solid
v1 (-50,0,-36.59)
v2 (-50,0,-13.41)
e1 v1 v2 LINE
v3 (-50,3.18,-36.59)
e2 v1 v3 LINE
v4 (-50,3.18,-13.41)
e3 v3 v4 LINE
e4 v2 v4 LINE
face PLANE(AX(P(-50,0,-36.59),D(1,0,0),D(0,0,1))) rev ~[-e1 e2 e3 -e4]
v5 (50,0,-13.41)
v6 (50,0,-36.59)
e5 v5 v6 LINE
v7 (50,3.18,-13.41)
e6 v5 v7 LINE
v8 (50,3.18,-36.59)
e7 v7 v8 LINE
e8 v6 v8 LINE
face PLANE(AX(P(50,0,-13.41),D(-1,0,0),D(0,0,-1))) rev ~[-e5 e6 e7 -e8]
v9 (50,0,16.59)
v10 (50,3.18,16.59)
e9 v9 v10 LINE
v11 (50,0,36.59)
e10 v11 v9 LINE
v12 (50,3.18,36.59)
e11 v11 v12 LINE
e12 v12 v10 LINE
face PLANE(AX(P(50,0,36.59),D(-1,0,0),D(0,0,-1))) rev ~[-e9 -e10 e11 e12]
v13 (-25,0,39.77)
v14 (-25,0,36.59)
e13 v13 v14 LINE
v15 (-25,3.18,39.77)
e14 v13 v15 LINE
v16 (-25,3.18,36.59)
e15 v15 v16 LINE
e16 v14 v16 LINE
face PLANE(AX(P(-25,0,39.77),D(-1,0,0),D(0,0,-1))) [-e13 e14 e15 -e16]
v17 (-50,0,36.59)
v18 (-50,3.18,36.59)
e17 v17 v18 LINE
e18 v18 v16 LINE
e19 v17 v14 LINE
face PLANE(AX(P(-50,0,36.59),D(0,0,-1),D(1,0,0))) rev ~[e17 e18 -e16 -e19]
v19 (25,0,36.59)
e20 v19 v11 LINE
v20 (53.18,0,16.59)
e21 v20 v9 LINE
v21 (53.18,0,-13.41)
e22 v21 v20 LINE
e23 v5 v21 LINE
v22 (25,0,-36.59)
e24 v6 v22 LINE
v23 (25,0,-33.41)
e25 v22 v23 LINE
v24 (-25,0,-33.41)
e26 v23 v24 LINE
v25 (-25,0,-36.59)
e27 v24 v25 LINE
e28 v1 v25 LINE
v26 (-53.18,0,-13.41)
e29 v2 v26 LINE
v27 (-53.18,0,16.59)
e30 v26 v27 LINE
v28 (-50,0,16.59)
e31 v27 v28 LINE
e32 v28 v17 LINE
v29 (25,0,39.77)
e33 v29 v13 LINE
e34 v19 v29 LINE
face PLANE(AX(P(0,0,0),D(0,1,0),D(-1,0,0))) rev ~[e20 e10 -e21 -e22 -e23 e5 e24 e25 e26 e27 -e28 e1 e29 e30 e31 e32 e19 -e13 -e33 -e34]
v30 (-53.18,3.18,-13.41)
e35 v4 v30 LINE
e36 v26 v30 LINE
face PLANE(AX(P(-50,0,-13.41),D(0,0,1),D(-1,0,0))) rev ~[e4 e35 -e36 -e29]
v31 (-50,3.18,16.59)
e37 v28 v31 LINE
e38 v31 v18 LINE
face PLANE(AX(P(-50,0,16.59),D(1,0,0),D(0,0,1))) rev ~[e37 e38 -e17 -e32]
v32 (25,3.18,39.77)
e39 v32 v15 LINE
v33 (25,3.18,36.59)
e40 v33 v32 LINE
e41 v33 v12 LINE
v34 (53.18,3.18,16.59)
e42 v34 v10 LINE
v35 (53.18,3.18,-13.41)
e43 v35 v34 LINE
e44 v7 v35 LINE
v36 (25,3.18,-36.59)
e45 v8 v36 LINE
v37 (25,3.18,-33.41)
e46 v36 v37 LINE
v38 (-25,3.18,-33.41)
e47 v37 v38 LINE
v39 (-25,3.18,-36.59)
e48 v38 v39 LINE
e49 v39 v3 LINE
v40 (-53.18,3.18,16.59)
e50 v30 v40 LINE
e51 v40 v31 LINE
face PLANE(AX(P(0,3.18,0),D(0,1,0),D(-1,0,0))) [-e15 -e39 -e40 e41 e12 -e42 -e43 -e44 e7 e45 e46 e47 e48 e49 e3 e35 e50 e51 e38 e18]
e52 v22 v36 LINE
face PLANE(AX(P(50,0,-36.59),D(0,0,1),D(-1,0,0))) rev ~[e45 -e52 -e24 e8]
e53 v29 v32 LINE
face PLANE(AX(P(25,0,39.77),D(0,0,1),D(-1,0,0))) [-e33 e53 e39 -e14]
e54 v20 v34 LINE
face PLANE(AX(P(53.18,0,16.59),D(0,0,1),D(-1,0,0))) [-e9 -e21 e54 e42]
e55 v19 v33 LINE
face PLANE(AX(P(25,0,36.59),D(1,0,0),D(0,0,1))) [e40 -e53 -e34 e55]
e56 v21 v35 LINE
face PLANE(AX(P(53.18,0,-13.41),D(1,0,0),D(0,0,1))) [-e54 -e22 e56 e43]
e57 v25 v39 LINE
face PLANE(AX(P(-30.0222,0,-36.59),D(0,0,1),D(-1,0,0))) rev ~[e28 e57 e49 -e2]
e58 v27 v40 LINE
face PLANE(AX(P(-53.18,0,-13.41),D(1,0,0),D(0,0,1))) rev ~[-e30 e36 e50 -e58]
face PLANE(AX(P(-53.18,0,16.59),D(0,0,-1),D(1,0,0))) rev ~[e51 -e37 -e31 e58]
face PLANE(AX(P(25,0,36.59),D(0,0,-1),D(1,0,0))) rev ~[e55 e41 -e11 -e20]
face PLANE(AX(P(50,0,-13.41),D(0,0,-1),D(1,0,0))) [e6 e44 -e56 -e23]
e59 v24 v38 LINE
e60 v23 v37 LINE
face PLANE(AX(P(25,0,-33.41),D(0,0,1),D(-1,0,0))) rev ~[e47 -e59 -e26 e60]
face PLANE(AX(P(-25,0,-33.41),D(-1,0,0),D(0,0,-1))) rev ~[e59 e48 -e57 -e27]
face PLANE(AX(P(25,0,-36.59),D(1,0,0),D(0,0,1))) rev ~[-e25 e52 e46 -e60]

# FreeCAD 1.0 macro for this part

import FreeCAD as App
import Part
import Sketcher
Q = App.Units.Quantity


def add_polygon(sketch, points):
    """Adds a closed chain of lines whose ends are joined by coincident constraints."""
    first, n = sketch.GeometryCount, len(points)
    for a, b in zip(points, points[1:] + points[:1]):
        sketch.addGeometry(Part.LineSegment(App.Vector(*a, 0), App.Vector(*b, 0)), False)
    for i in range(n):
        sketch.addConstraint(Sketcher.Constraint("Coincident", first + i, 2, first + (i + 1) % n, 1))

doc = App.newDocument("Part")
body = doc.addObject("PartDesign::Body", "Body")

# Sketch on XZ plane
sketch1 = doc.addObject("Sketcher::SketchObject", "Sketch")
body.addObject(sketch1)
sketch1.AttachmentSupport = (doc.XZ_Plane, [""])
sketch1.MapMode = "FlatFace"
add_polygon(sketch1, [(50, -13.41), (50, -36.59), (25, -36.59), (25, -33.41), (-25, -33.41), (-25, -36.59), (-50, -36.59), (-50, -13.41), (-53.18, -13.41), (-53.18, 16.59), (-50, 16.59), (-50, 36.59), (-25, 36.59), (-25, 39.77), (25, 39.77), (25, 36.59), (50, 36.59), (50, 16.59), (53.18, 16.59), (53.18, -13.41)])  # lines 0-19
sketch1.addConstraint([
    Sketcher.Constraint("Vertical", 0),
    Sketcher.Constraint("Horizontal", 1),
    Sketcher.Constraint("Vertical", 2),
    Sketcher.Constraint("Horizontal", 3),
    Sketcher.Constraint("Vertical", 4),
    Sketcher.Constraint("Horizontal", 5),
    Sketcher.Constraint("Vertical", 6),
    Sketcher.Constraint("Horizontal", 7),
    Sketcher.Constraint("Vertical", 8),
    Sketcher.Constraint("Horizontal", 9),
    Sketcher.Constraint("Vertical", 10),
    Sketcher.Constraint("Horizontal", 11),
    Sketcher.Constraint("Vertical", 12),
    Sketcher.Constraint("Horizontal", 13),
    Sketcher.Constraint("Vertical", 14),
    Sketcher.Constraint("Horizontal", 15),
    Sketcher.Constraint("Vertical", 16),
    Sketcher.Constraint("Horizontal", 17),
    Sketcher.Constraint("Vertical", 18),
    Sketcher.Constraint("Horizontal", 19),
    Sketcher.Constraint("Symmetric", 0, 2, 10, 2, -1, 1),
    Sketcher.Constraint("Symmetric", 4, 2, 14, 2, -1, 1),
    Sketcher.Constraint("Symmetric", 1, 2, 4, 2, -2),
    Sketcher.Constraint("Symmetric", 9, 2, 16, 2, -2),
    Sketcher.Constraint("Symmetric", 7, 2, 18, 2, -2),
    Sketcher.Constraint("Vertical", 6, 2, 9, 2),
    Sketcher.Constraint("Vertical", 4, 2, 11, 2),
    Sketcher.Constraint("Equal", 19, 2),
    Sketcher.Constraint("Equal", 4, 12),
    Sketcher.Constraint("DistanceX", 1, 2, 1, 1, Q("25 mm")),
    Sketcher.Constraint("DistanceX", 3, 2, 3, 1, Q("50 mm")),
    Sketcher.Constraint("DistanceY", 8, 1, 8, 2, Q("30 mm")),
    Sketcher.Constraint("DistanceY", 10, 1, 10, 2, Q("20 mm")),
    Sketcher.Constraint("DistanceY", 3, 2, 6, 2, Q("20 mm")),
    Sketcher.Constraint("DistanceX", 7, 2, 7, 1, Q("3.18 mm")),
])
pad1 = doc.addObject("PartDesign::Pad", "Pad")
body.addObject(pad1)
pad1.Profile = sketch1
pad1.Length = 3.18
pad1.Reversed = True

doc.recompute()
